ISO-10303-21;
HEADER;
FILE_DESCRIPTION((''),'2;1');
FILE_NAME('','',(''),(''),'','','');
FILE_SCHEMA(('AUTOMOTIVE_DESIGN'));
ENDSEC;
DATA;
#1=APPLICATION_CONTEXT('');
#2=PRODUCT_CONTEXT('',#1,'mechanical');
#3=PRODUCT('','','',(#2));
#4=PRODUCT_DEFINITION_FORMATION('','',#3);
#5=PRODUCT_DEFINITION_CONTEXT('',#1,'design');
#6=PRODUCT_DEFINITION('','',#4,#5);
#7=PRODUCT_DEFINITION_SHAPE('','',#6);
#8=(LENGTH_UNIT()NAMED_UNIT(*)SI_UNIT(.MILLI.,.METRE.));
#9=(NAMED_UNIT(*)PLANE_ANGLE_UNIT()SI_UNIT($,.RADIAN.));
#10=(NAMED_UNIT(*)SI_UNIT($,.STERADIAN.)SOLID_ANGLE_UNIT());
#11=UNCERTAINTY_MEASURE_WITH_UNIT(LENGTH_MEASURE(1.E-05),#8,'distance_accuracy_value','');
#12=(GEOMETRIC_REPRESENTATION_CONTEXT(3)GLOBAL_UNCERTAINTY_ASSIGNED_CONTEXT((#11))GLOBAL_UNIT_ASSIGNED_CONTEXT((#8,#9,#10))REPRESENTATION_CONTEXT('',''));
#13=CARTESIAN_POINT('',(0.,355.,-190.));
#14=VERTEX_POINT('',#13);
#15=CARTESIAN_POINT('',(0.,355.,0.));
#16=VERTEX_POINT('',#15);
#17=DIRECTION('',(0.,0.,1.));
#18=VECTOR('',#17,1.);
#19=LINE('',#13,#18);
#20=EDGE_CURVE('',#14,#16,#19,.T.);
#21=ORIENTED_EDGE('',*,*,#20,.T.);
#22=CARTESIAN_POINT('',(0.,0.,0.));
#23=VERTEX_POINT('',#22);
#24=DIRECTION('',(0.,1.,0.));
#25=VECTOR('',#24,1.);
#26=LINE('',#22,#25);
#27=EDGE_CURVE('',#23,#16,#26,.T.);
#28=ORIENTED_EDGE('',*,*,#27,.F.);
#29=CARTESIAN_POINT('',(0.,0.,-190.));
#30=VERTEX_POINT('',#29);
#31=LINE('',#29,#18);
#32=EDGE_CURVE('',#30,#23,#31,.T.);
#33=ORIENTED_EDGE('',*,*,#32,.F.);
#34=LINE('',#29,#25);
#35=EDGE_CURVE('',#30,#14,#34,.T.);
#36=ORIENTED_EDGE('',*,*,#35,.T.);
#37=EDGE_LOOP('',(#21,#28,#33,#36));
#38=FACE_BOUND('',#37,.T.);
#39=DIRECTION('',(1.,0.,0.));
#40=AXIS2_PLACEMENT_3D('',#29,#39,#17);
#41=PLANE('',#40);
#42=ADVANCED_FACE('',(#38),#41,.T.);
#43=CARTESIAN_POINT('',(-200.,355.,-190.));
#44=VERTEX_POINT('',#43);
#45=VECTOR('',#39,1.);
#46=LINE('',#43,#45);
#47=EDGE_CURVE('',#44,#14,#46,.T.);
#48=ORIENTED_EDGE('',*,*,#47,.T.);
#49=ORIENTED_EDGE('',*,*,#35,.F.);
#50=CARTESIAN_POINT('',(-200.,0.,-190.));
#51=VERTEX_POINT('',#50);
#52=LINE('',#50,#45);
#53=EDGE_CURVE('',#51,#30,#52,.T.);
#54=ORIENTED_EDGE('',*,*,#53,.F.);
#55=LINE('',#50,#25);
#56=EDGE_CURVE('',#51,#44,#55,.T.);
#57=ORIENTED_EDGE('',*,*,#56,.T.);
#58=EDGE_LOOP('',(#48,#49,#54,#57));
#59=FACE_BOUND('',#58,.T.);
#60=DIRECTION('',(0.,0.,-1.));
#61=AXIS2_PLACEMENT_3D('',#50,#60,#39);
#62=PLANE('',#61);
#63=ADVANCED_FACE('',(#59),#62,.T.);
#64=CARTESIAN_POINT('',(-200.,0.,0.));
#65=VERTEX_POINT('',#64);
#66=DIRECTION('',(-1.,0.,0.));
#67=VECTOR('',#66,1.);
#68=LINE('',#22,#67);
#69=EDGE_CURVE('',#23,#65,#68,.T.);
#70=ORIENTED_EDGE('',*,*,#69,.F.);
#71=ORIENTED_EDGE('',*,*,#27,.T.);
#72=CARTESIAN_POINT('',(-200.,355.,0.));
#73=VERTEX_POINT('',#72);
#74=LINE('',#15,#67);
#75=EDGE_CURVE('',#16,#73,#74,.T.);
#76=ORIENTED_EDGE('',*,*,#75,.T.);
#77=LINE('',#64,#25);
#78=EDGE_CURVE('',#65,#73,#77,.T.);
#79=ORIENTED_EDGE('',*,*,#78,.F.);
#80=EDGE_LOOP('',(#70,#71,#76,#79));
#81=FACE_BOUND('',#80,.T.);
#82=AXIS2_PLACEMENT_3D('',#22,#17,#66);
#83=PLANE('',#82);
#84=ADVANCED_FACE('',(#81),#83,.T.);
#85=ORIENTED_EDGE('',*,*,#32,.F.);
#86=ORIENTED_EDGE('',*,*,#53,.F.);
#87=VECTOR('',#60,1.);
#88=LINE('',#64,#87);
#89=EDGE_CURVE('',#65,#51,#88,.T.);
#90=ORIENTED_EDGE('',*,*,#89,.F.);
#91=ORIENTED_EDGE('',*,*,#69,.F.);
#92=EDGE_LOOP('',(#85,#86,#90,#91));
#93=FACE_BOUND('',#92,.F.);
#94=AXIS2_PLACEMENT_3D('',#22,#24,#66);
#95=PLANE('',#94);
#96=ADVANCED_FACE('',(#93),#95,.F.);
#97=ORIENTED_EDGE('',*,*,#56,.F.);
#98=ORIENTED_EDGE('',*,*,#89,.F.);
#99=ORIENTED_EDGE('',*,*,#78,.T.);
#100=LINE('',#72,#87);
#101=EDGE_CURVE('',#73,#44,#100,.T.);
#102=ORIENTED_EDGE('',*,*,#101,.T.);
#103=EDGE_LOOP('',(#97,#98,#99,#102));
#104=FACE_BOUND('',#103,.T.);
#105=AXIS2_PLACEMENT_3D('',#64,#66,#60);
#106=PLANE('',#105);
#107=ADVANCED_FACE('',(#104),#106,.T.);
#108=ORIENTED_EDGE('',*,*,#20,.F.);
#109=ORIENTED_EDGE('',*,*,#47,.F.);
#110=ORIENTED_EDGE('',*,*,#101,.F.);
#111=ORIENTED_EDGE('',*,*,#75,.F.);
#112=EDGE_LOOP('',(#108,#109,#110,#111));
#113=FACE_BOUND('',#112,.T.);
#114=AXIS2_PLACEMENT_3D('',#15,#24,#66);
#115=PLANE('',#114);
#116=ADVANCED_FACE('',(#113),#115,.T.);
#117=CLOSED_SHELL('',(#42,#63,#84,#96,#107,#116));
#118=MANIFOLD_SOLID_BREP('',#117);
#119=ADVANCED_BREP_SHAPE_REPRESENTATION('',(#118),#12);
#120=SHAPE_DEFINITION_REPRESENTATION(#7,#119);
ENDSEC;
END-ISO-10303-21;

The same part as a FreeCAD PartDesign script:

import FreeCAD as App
import Part
import Sketcher
from FreeCAD import Vector

doc = App.newDocument("Part")
body = doc.addObject("PartDesign::Body", "Body")

# Sketch on XZ plane
sketch1 = body.newObject("Sketcher::SketchObject", "Sketch")
sketch1.AttachmentSupport = (doc.getObject("XZ_Plane"), [""])
sketch1.MapMode = "FlatFace"
sketch1.addGeometry([
    Part.LineSegment(Vector(-200, 0, 0), Vector(0, 0, 0)),
    Part.LineSegment(Vector(0, 0, 0), Vector(0, -190, 0)),
    Part.LineSegment(Vector(0, -190, 0), Vector(-200, -190, 0)),
    Part.LineSegment(Vector(-200, -190, 0), Vector(-200, 0, 0)),
], False)
sketch1.addConstraint([
    Sketcher.Constraint("Coincident", 0, 2, 1, 1),
    Sketcher.Constraint("Coincident", 1, 2, 2, 1),
    Sketcher.Constraint("Coincident", 2, 2, 3, 1),
    Sketcher.Constraint("Coincident", 3, 2, 0, 1),
    Sketcher.Constraint("Horizontal", 0),
    Sketcher.Constraint("Vertical", 1),
    Sketcher.Constraint("Horizontal", 2),
    Sketcher.Constraint("Vertical", 3),
    Sketcher.Constraint("Coincident", 0, 2, -1, 1),
    Sketcher.Constraint("DistanceX", 0, 1, 0, 2, 200.0),
    Sketcher.Constraint("DistanceY", 1, 2, 1, 1, 190.0),
])
pad1 = body.newObject("PartDesign::Pad", "Pad")
pad1.Profile = sketch1
pad1.Length = 355
pad1.Reversed = True

doc.recompute()
